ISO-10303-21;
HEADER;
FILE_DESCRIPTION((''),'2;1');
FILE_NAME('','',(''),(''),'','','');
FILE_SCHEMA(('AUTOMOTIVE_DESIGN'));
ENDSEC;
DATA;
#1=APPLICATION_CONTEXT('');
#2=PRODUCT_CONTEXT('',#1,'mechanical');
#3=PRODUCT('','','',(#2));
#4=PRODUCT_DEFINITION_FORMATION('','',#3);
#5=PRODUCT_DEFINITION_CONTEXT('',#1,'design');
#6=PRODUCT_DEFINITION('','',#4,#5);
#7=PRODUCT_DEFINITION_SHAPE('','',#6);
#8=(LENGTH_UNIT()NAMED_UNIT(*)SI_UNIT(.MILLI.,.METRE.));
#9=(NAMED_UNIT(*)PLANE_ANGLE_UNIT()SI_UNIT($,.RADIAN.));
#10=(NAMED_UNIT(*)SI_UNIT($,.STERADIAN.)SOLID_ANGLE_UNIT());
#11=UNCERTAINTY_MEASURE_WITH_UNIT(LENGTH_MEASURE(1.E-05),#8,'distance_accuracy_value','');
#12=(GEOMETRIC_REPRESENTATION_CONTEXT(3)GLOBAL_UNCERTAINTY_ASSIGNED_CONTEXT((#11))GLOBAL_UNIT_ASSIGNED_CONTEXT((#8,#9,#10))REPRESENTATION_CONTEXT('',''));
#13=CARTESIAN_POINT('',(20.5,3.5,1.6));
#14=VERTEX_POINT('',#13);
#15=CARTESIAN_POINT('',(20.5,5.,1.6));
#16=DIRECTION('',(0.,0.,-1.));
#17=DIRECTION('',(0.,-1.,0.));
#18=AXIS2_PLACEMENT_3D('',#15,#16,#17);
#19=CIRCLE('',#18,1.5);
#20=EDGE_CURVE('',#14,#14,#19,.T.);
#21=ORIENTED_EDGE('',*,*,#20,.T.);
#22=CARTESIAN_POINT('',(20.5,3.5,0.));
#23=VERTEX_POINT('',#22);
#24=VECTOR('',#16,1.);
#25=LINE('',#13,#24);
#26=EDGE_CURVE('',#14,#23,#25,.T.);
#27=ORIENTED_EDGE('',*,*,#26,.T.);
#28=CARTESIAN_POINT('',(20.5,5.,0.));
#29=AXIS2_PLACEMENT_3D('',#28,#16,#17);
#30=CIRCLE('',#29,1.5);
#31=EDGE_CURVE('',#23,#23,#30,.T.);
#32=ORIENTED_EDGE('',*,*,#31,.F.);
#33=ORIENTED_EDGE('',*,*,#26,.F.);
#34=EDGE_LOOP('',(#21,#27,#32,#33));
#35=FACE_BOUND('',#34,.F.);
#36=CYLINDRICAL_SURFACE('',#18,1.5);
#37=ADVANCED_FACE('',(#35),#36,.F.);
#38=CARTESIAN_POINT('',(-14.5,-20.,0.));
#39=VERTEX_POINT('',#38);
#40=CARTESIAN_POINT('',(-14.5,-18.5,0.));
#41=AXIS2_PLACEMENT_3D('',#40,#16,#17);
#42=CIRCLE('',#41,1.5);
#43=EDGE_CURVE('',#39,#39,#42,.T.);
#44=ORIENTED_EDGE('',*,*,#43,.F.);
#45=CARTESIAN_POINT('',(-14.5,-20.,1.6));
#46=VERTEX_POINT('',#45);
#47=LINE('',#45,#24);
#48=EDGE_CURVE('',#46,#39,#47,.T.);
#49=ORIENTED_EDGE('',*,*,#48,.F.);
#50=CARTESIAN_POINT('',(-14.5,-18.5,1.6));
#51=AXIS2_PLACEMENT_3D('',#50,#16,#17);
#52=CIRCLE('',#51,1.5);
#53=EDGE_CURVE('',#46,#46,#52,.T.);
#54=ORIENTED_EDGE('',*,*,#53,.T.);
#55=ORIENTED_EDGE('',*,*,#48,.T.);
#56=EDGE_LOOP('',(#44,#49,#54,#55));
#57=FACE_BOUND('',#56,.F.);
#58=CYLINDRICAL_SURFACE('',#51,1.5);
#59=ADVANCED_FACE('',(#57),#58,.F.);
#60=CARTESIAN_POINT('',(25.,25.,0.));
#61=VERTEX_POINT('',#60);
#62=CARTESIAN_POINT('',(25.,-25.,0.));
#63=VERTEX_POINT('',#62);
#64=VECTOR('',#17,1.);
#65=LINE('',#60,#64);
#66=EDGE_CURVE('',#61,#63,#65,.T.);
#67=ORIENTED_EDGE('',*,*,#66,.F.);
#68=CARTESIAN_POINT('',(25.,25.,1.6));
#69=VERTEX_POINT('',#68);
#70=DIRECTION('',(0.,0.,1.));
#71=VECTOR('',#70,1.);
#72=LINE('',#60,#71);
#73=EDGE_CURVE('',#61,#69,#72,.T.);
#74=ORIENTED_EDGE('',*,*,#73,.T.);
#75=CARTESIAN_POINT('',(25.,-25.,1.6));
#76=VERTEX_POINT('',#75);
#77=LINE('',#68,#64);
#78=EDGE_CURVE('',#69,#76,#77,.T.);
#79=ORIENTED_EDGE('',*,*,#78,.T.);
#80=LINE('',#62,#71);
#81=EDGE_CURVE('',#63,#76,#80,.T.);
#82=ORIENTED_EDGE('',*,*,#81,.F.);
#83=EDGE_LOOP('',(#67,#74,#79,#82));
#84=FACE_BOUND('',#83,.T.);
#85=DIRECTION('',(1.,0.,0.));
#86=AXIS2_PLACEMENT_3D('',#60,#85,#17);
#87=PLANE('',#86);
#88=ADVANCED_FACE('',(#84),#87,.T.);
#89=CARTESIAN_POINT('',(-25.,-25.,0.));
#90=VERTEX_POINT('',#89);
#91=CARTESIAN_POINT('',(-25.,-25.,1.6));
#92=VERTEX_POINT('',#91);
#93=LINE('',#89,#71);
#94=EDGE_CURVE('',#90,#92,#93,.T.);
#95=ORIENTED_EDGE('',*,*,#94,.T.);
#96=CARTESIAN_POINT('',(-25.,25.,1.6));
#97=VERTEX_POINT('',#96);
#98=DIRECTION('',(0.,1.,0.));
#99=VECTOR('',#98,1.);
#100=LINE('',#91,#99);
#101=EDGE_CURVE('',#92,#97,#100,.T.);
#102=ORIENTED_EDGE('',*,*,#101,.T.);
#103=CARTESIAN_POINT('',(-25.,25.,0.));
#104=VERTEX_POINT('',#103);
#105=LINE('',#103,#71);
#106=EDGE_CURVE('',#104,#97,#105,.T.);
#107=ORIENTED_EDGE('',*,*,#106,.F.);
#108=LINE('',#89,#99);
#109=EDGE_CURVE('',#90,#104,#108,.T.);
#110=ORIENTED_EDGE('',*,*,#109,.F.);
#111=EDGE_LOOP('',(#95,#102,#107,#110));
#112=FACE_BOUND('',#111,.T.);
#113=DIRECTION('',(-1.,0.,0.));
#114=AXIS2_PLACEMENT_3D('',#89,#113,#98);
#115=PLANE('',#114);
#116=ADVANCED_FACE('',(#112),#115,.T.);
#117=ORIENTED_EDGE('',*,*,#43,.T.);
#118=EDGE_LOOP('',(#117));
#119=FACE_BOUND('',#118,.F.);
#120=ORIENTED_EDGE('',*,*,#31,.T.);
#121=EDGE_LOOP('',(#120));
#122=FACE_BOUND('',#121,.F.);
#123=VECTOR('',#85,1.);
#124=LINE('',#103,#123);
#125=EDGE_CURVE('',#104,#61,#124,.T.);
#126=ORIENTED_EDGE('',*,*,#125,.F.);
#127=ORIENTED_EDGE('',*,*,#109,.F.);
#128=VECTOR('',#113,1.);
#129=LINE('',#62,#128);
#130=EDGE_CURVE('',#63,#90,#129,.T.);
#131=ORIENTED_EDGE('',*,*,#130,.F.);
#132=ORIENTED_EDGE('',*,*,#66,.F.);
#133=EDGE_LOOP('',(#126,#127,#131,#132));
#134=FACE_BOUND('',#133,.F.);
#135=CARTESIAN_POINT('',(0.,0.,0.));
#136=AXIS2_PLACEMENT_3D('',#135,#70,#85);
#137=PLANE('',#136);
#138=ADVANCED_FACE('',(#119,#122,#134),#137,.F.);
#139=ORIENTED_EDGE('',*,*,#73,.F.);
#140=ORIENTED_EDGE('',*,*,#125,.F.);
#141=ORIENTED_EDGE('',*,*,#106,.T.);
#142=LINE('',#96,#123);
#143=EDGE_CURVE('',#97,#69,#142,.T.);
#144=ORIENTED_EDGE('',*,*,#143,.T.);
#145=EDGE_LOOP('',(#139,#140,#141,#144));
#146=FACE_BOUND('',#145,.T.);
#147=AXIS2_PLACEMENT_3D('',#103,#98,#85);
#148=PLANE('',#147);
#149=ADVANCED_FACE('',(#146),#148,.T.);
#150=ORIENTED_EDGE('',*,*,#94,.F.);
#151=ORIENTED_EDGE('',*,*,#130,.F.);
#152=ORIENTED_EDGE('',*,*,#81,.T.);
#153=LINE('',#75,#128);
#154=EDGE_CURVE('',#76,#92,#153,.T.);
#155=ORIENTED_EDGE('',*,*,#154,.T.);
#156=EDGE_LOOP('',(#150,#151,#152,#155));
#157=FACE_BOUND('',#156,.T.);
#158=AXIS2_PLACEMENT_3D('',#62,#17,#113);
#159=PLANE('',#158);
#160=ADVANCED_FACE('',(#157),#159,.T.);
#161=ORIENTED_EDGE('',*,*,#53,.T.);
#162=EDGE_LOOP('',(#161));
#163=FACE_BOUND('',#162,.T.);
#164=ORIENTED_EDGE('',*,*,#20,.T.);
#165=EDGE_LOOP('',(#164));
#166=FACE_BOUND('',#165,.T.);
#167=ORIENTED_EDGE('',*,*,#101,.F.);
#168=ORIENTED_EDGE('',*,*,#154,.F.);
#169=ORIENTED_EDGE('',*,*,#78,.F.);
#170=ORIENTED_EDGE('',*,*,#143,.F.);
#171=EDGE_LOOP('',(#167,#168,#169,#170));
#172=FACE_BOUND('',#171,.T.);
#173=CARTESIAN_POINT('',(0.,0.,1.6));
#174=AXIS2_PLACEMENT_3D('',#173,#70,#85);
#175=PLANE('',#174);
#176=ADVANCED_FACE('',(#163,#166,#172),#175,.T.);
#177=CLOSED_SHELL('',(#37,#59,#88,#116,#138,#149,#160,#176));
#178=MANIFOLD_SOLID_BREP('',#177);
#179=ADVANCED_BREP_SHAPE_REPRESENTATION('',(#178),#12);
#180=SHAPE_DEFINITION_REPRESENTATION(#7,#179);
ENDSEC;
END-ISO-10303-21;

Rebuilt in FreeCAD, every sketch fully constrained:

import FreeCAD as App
import Part
import Sketcher
from FreeCAD import Vector
Q = App.Units.Quantity

doc = App.newDocument("Part")
body = doc.addObject("PartDesign::Body", "Body")

# Sketch on XY plane
sketch1 = body.newObject("Sketcher::SketchObject", "Sketch")
sketch1.AttachmentSupport = (doc.getObject("XY_Plane"), [""])
sketch1.MapMode = "FlatFace"
sketch1.addGeometry(Part.LineSegment(Vector(25, 25, 0), Vector(-25, 25, 0)), False)
sketch1.addGeometry(Part.LineSegment(Vector(-25, 25, 0), Vector(-25, -25, 0)), False)
sketch1.addGeometry(Part.LineSegment(Vector(-25, -25, 0), Vector(25, -25, 0)), False)
sketch1.addGeometry(Part.LineSegment(Vector(25, -25, 0), Vector(25, 25, 0)), False)
sketch1.addConstraint(Sketcher.Constraint("Coincident", 0, 2, 1, 1))
sketch1.addConstraint(Sketcher.Constraint("Coincident", 1, 2, 2, 1))
sketch1.addConstraint(Sketcher.Constraint("Coincident", 2, 2, 3, 1))
sketch1.addConstraint(Sketcher.Constraint("Coincident", 3, 2, 0, 1))
sketch1.addConstraint(Sketcher.Constraint("Horizontal", 0))
sketch1.addConstraint(Sketcher.Constraint("Vertical", 1))
sketch1.addConstraint(Sketcher.Constraint("Horizontal", 2))
sketch1.addConstraint(Sketcher.Constraint("Vertical", 3))
sketch1.addConstraint(Sketcher.Constraint("Symmetric", 0, 2, 2, 2, -1, 1))
sketch1.addConstraint(Sketcher.Constraint("Equal", 2, 1))
sketch1.addConstraint(Sketcher.Constraint("DistanceX", 0, 2, 0, 1, Q("1.9685 in")))
pad1 = body.newObject("PartDesign::Pad", "Pad")
pad1.Profile = sketch1
pad1.Length = Q("0.0629921 in")

# Sketch on XY plane
sketch2 = body.newObject("Sketcher::SketchObject", "Sketch001")
sketch2.AttachmentSupport = (doc.getObject("XY_Plane"), [""])
sketch2.MapMode = "FlatFace"
sketch2.AttachmentOffset = App.Placement(Vector(0, 0, 0.0629921 * 25.4), App.Rotation())
sketch2.addGeometry(Part.Circle(Vector(-14.5, -18.5, 0), Vector(0, 0, 1), 1.5), False)
sketch2.addGeometry(Part.Circle(Vector(20.5, 5, 0), Vector(0, 0, 1), 1.5), False)
sketch2.addConstraint(Sketcher.Constraint("Equal", 0, 1))
sketch2.addConstraint(Sketcher.Constraint("Diameter", 0, Q("0.1181 in")))
sketch2.addConstraint(Sketcher.Constraint("DistanceY", 0, 3, 1, 3, Q("0.9252 in")))
sketch2.addConstraint(Sketcher.Constraint("DistanceX", 0, 3, -1, 1, 14.5))
sketch2.addConstraint(Sketcher.Constraint("DistanceY", 0, 3, -1, 1, 18.5))
sketch2.addConstraint(Sketcher.Constraint("DistanceX", -1, 1, 1, 3, 20.5))
doc.recompute()
hole = body.newObject("PartDesign::Hole", "Hole")
hole.Profile = sketch2
hole.ThreadType = "None"
hole.Diameter = Q("0.1181102 in")
hole.DepthType = "ThroughAll"

doc.recompute()
